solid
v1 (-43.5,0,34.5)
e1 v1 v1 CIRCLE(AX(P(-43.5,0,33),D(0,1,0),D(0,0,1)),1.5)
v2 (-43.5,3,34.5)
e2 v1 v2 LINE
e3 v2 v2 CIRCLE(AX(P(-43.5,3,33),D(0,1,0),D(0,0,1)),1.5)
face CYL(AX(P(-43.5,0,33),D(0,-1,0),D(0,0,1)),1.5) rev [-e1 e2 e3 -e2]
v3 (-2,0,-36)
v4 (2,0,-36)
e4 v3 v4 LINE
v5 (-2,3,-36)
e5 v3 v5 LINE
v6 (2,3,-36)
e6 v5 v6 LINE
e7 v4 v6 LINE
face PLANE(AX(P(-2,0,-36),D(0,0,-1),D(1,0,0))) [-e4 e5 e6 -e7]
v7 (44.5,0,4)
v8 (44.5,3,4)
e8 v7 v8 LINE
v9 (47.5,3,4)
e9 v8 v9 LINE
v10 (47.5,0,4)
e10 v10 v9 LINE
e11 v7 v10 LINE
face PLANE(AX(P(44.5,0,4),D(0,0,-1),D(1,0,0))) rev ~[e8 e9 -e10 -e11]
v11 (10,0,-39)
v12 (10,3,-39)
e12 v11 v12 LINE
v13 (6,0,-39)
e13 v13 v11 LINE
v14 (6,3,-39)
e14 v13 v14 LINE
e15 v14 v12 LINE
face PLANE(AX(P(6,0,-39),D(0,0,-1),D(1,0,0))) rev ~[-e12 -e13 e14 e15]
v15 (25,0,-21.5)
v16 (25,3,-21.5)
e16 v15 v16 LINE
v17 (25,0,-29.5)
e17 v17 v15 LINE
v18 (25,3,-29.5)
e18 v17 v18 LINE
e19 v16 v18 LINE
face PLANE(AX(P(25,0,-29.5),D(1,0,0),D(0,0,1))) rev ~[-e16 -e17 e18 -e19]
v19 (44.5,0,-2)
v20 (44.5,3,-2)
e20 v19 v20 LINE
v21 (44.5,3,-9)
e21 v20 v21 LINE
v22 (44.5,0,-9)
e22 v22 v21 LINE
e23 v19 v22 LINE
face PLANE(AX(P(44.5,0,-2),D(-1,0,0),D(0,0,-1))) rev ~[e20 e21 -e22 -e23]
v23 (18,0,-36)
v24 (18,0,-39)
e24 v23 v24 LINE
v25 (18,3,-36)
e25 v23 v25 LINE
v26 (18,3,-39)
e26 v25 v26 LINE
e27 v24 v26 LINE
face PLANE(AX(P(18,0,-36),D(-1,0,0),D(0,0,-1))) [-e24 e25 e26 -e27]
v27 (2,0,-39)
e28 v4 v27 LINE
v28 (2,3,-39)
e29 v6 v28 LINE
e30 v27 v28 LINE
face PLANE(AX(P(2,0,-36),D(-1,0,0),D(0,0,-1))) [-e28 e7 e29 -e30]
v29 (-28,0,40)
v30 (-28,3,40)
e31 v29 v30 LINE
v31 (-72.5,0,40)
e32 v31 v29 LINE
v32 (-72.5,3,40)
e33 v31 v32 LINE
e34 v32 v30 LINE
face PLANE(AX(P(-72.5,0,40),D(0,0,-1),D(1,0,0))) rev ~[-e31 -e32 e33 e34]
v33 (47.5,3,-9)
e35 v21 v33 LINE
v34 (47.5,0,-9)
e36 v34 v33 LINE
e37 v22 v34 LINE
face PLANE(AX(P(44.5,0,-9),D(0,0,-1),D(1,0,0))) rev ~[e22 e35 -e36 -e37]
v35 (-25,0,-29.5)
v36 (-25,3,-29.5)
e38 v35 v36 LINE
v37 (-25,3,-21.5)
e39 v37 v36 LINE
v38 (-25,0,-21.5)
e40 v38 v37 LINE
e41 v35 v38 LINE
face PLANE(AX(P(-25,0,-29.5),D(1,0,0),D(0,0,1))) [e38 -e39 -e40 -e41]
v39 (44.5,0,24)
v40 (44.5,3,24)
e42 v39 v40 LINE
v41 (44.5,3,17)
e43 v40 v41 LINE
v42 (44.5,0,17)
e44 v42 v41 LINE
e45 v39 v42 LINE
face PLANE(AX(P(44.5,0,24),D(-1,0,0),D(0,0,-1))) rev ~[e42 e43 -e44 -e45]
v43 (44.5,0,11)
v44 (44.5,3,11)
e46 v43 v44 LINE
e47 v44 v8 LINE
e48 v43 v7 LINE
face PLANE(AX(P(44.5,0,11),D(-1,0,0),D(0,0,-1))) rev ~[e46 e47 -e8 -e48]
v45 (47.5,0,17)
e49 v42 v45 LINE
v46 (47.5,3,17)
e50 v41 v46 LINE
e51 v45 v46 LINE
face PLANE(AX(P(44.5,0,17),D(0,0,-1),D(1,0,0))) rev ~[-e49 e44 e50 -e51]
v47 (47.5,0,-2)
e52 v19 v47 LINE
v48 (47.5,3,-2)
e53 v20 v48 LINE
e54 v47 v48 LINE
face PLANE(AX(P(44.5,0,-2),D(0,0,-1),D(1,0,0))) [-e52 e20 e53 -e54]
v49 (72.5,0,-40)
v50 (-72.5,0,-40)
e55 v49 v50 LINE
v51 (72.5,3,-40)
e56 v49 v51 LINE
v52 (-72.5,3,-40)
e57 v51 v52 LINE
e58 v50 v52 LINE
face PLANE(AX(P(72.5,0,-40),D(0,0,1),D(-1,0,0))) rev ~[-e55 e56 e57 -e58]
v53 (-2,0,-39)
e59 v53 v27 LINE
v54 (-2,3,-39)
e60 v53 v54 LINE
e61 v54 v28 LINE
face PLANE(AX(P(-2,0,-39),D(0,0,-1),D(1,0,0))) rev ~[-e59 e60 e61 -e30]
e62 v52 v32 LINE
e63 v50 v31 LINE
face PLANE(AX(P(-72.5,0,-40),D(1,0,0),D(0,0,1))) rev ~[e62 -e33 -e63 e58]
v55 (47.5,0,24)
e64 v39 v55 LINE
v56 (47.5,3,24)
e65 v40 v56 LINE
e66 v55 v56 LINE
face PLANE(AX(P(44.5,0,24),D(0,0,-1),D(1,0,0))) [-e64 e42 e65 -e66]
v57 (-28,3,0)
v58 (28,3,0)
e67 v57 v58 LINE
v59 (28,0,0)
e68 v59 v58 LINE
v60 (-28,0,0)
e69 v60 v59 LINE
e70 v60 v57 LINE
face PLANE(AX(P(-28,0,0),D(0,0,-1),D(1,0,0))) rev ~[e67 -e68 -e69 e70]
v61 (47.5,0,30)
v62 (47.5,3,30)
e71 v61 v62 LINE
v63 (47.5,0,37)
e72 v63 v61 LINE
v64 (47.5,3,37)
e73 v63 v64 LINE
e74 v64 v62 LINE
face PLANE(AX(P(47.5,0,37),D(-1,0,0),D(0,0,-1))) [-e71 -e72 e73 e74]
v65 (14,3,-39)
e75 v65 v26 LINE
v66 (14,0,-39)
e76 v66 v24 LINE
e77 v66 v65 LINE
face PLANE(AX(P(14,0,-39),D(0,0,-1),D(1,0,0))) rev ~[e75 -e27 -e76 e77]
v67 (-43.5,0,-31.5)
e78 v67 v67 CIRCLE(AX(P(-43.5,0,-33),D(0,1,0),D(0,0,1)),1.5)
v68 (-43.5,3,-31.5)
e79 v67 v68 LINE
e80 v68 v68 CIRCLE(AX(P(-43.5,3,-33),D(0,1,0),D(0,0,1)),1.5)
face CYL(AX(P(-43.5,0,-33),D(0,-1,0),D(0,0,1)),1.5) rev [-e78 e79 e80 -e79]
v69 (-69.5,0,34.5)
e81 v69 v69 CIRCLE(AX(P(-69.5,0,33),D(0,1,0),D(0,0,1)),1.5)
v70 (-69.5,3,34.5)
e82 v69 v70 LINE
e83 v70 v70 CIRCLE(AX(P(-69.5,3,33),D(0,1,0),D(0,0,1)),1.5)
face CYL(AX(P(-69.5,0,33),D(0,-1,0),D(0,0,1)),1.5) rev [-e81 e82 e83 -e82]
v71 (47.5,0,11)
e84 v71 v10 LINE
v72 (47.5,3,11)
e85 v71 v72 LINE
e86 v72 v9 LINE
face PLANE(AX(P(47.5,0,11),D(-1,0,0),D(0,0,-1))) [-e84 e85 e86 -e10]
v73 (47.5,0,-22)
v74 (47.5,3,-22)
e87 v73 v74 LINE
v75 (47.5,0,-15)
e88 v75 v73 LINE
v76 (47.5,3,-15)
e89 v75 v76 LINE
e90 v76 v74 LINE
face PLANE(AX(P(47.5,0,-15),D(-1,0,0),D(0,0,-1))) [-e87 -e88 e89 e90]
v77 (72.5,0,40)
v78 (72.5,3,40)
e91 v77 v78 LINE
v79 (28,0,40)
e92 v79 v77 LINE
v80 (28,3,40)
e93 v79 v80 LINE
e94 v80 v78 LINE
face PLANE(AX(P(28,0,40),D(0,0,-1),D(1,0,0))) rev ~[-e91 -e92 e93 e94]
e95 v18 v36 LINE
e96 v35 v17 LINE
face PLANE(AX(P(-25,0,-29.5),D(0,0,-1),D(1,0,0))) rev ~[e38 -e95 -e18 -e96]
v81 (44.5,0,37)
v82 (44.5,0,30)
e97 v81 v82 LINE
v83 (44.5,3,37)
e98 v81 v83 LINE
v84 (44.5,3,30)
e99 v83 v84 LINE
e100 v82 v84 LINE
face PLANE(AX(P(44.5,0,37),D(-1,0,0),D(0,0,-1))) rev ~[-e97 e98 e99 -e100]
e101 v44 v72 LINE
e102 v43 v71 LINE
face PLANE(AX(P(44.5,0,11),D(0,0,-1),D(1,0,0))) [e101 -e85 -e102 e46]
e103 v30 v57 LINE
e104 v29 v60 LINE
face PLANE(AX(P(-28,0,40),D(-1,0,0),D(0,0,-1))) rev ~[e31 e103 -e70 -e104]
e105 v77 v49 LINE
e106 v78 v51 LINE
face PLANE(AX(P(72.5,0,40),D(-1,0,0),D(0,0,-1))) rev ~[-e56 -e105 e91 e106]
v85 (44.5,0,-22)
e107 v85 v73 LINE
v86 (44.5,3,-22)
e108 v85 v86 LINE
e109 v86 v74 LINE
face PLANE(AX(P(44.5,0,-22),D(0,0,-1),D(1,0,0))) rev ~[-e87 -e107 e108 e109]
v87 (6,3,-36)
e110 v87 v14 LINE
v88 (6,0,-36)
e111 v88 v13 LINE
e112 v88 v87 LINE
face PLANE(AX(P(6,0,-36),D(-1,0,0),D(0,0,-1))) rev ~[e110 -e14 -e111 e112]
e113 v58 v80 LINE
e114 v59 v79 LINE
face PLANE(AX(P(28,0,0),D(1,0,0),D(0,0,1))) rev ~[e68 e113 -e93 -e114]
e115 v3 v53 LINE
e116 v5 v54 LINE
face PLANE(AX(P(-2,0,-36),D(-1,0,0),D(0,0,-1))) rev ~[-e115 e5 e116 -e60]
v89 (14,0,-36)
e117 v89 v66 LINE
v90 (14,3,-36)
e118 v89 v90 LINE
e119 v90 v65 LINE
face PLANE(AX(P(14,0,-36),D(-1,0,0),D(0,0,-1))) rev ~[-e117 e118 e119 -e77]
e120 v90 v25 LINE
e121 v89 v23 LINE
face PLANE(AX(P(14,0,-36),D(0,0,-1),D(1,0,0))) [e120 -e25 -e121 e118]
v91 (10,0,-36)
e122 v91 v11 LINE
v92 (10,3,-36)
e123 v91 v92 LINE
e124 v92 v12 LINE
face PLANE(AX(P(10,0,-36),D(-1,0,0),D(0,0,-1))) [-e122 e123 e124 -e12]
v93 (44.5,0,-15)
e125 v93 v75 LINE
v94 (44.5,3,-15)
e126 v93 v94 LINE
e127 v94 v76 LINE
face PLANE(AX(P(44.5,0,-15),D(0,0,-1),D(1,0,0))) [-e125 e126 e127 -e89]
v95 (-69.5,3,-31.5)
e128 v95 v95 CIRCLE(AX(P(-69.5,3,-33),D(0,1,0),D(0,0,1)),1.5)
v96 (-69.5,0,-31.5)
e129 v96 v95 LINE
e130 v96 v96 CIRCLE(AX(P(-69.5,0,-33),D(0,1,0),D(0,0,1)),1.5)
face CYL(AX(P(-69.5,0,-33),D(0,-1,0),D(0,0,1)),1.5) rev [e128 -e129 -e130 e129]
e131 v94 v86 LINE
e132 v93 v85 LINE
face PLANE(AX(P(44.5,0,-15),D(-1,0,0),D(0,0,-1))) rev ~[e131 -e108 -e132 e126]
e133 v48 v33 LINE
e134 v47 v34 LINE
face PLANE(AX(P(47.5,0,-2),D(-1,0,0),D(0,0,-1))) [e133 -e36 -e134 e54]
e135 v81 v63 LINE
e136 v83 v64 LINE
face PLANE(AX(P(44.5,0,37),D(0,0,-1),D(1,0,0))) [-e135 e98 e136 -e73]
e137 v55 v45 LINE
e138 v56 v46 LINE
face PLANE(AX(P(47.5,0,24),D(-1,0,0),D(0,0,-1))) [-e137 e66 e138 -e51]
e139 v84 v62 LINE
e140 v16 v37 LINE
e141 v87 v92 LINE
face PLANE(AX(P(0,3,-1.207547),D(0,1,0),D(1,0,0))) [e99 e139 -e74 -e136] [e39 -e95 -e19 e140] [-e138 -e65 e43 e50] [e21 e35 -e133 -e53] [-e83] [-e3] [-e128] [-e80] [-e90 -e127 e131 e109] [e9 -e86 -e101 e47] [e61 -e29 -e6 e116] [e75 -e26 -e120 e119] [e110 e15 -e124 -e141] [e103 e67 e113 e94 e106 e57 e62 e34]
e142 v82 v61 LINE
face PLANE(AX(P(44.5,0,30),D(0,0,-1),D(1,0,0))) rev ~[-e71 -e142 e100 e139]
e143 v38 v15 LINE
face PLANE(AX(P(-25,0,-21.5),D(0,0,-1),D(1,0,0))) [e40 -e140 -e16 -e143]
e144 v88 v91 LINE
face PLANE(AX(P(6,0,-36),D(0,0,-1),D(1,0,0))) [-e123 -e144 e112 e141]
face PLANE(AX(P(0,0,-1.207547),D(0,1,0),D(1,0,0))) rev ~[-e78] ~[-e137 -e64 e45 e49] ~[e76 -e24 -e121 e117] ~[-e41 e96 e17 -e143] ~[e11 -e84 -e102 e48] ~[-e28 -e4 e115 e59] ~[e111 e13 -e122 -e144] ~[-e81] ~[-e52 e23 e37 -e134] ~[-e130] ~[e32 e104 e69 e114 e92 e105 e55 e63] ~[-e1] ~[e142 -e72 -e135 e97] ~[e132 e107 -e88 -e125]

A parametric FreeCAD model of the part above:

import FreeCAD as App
import Part
import Sketcher

V = App.Vector
Q = App.Units.Quantity


def add_polygon(sketch, points):
    """Adds a closed chain of lines whose ends are joined by coincident constraints."""
    first, n = sketch.GeometryCount, len(points)
    for a, b in zip(points, points[1:] + points[:1]):
        sketch.addGeometry(Part.LineSegment(App.Vector(*a, 0), App.Vector(*b, 0)), False)
    for i in range(n):
        sketch.addConstraint(Sketcher.Constraint("Coincident", first + i, 2, first + (i + 1) % n, 1))

doc = App.newDocument("Part")
body = doc.addObject("PartDesign::Body", "Body")

sketch1 = doc.addObject("Sketcher::SketchObject", "Sketch")
body.addObject(sketch1)
sketch1.AttachmentSupport = (doc.XZ_Plane, [""])
sketch1.MapMode = "FlatFace"
add_polygon(sketch1, [(-72.5, 40), (-28, 40), (-28, 0), (28, 0), (28, 40), (72.5, 40), (72.5, -40), (-72.5, -40)])
sketch1.addGeometry(Part.Circle(V(-69.5, 33, 0), V(0, 0, 1), 1.5), False)
sketch1.addGeometry(Part.Circle(V(-43.5, 33, 0), V(0, 0, 1), 1.5), False)
add_polygon(sketch1, [(47.5, 37), (44.5, 37), (44.5, 30), (47.5, 30)])
add_polygon(sketch1, [(47.5, 24), (44.5, 24), (44.5, 17), (47.5, 17)])
add_polygon(sketch1, [(47.5, 11), (44.5, 11), (44.5, 4), (47.5, 4)])
sketch1.addGeometry(Part.Circle(V(-69.5, -33, 0), V(0, 0, 1), 1.5), False)
sketch1.addGeometry(Part.Circle(V(-43.5, -33, 0), V(0, 0, 1), 1.5), False)
add_polygon(sketch1, [(47.5, -2), (44.5, -2), (44.5, -9), (47.5, -9)])
add_polygon(sketch1, [(47.5, -15), (44.5, -15), (44.5, -22), (47.5, -22)])
add_polygon(sketch1, [(2, -36), (-2, -36), (-2, -39), (2, -39)])
add_polygon(sketch1, [(10, -36), (6, -36), (6, -39), (10, -39)])
add_polygon(sketch1, [(18, -36), (14, -36), (14, -39), (18, -39)])
sketch1.addConstraint([
    Sketcher.Constraint("Horizontal", 0),
    Sketcher.Constraint("Vertical", 1),
    Sketcher.Constraint("Horizontal", 2),
    Sketcher.Constraint("Vertical", 3),
    Sketcher.Constraint("Horizontal", 4),
    Sketcher.Constraint("Vertical", 5),
    Sketcher.Constraint("Horizontal", 6),
    Sketcher.Constraint("Vertical", 7),
    Sketcher.Constraint("Horizontal", 10),
    Sketcher.Constraint("Vertical", 11),
    Sketcher.Constraint("Horizontal", 12),
    Sketcher.Constraint("Vertical", 13),
    Sketcher.Constraint("Horizontal", 14),
    Sketcher.Constraint("Vertical", 15),
    Sketcher.Constraint("Horizontal", 16),
    Sketcher.Constraint("Vertical", 17),
    Sketcher.Constraint("Horizontal", 18),
    Sketcher.Constraint("Vertical", 19),
    Sketcher.Constraint("Horizontal", 20),
    Sketcher.Constraint("Vertical", 21),
    Sketcher.Constraint("Horizontal", 24),
    Sketcher.Constraint("Vertical", 25),
    Sketcher.Constraint("Horizontal", 26),
    Sketcher.Constraint("Vertical", 27),
    Sketcher.Constraint("Horizontal", 28),
    Sketcher.Constraint("Vertical", 29),
    Sketcher.Constraint("Horizontal", 30),
    Sketcher.Constraint("Vertical", 31),
    Sketcher.Constraint("Horizontal", 32),
    Sketcher.Constraint("Vertical", 33),
    Sketcher.Constraint("Horizontal", 34),
    Sketcher.Constraint("Vertical", 35),
    Sketcher.Constraint("Horizontal", 36),
    Sketcher.Constraint("Vertical", 37),
    Sketcher.Constraint("Horizontal", 38),
    Sketcher.Constraint("Vertical", 39),
    Sketcher.Constraint("Horizontal", 40),
    Sketcher.Constraint("Vertical", 41),
    Sketcher.Constraint("Horizontal", 42),
    Sketcher.Constraint("Vertical", 43),
    Sketcher.Constraint("Equal", 8, 9),
    Sketcher.Constraint("Equal", 9, 22),
    Sketcher.Constraint("Equal", 22, 23),
    Sketcher.Constraint("Symmetric", 1, 2, 2, 2, -1, 1),
    Sketcher.Constraint("Symmetric", 4, 2, 6, 2, -1, 1),
    Sketcher.Constraint("Symmetric", 8, 3, 22, 3, -1),
    Sketcher.Constraint("Symmetric", 9, 3, 23, 3, -1),
    Sketcher.Constraint("Horizontal", 8, 3, 9, 3),
    Sketcher.Constraint("Horizontal", 0, 2, 3, 2),
    Sketcher.Constraint("Horizontal", 35, 2, 36, 2),
    Sketcher.Constraint("Horizontal", 34, 2, 37, 2),
    Sketcher.Constraint("Horizontal", 39, 2, 40, 2),
    Sketcher.Constraint("Horizontal", 38, 2, 41, 2),
    Sketcher.Constraint("Vertical", 11, 2, 14, 2),
    Sketcher.Constraint("Vertical", 13, 2, 16, 2),
    Sketcher.Constraint("Vertical", 15, 2, 18, 2),
    Sketcher.Constraint("Vertical", 17, 2, 20, 2),
    Sketcher.Constraint("Vertical", 19, 2, 24, 2),
    Sketcher.Constraint("Vertical", 21, 2, 26, 2),
    Sketcher.Constraint("Vertical", 25, 2, 28, 2),
    Sketcher.Constraint("Vertical", 27, 2, 30, 2),
    Sketcher.Constraint("Equal", 34, 36),
    Sketcher.Constraint("Equal", 38, 40),
    Sketcher.Constraint("Equal", 13, 15),
    Sketcher.Constraint("Equal", 17, 19),
    Sketcher.Constraint("Equal", 21, 25),
    Sketcher.Constraint("Equal", 27, 29),
    Sketcher.Constraint("Equal", 30, 33),
    Sketcher.Constraint("Diameter", 8, Q("3 mm")),
    Sketcher.Constraint("DistanceX", 2, 1, 2, 2, Q("56 mm")),
    Sketcher.Constraint("DistanceX", 6, 2, 6, 1, Q("145 mm")),
    Sketcher.Constraint("DistanceX", 10, 2, 10, 1, Q("3 mm")),
    Sketcher.Constraint("DistanceX", 32, 2, 32, 1, Q("4 mm")),
    Sketcher.Constraint("DistanceY", 1, 2, 1, 1, Q("40 mm")),
    Sketcher.Constraint("DistanceY", 11, 2, 11, 1, Q("7 mm")),
    Sketcher.Constraint("DistanceY", -1, 1, 8, 3, Q("33 mm")),
    Sketcher.Constraint("DistanceY", -1, 1, 10, 2, Q("37 mm")),
    Sketcher.Constraint("DistanceY", -1, 1, 14, 2, Q("24 mm")),
    Sketcher.Constraint("DistanceY", -1, 1, 18, 2, Q("11 mm")),
    Sketcher.Constraint("DistanceY", 24, 2, -1, 1, Q("2 mm")),
    Sketcher.Constraint("DistanceY", 28, 2, -1, 1, Q("15 mm")),
    Sketcher.Constraint("DistanceX", 32, 2, -1, 1, Q("2 mm")),
    Sketcher.Constraint("DistanceY", 32, 2, -1, 1, Q("36 mm")),
    Sketcher.Constraint("DistanceX", -1, 1, 36, 2, Q("6 mm")),
    Sketcher.Constraint("DistanceX", -1, 1, 40, 2, Q("14 mm")),
    Sketcher.Constraint("DistanceX", 8, 3, 9, 3, Q("26 mm")),
    Sketcher.Constraint("DistanceX", 9, 3, 4, 2, Q("116 mm")),
    Sketcher.Constraint("DistanceX", 10, 2, 4, 2, Q("28 mm")),
])
pad1 = doc.addObject("PartDesign::Pad", "Pad")
body.addObject(pad1)
pad1.Profile = sketch1
pad1.Length = 3
pad1.Reversed = True

sketch2 = doc.addObject("Sketcher::SketchObject", "Sketch001")
body.addObject(sketch2)
sketch2.AttachmentSupport = (doc.XZ_Plane, [""])
sketch2.MapMode = "FlatFace"
add_polygon(sketch2, [(-25, -22), (-25, -30), (25, -30), (25, -22)])
sketch2.addConstraint([
    Sketcher.Constraint("Vertical", 0),
    Sketcher.Constraint("Horizontal", 1),
    Sketcher.Constraint("Vertical", 2),
    Sketcher.Constraint("Horizontal", 3),
    Sketcher.Constraint("DistanceX", 1, 1, 1, 2, Q("50 mm")),
    Sketcher.Constraint("DistanceY", 0, 2, 0, 1, Q("8 mm")),
    Sketcher.Constraint("DistanceX", 0, 2, -1, 1, Q("25 mm")),
    Sketcher.Constraint("DistanceY", 0, 2, -1, 1, Q("29.5 mm")),
])
pocket1 = doc.addObject("PartDesign::Pocket", "Pocket")
body.addObject(pocket1)
pocket1.Profile = sketch2
pocket1.Length = 10

doc.recompute()
